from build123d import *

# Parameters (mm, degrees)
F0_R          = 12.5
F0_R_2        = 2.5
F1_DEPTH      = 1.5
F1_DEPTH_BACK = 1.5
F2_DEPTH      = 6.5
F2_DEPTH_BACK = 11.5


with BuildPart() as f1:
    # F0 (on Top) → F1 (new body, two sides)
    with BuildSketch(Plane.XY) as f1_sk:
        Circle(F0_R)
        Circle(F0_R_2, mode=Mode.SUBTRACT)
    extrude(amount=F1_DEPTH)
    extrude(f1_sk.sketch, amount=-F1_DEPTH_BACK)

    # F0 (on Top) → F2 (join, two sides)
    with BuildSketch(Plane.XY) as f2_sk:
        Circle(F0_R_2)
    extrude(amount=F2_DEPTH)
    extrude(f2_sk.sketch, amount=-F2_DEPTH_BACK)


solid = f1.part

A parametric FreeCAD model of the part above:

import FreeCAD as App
import Part
import Sketcher

V = App.Vector

doc = App.newDocument("Part")
body = doc.addObject("PartDesign::Body", "Body")

sketch1 = doc.addObject("Sketcher::SketchObject", "Sketch")
body.addObject(sketch1)
sketch1.AttachmentSupport = (doc.XY_Plane, [""])
sketch1.MapMode = "FlatFace"
sketch1.addGeometry([
    Part.Circle(V(0, 0, 0), V(0, 0, 1), 12.5),
    Part.Circle(V(0, 0, 0), V(0, 0, 1), 2.5),
], False)
sketch1.addConstraint([
    Sketcher.Constraint("Coincident", 0, 3, -1, 1),
    Sketcher.Constraint("Coincident", 1, 3, -1, 1),
    Sketcher.Constraint("Diameter", 0, 25.0),
    Sketcher.Constraint("Diameter", 1, 5.0),
])
pad1 = doc.addObject("PartDesign::Pad", "Pad")
body.addObject(pad1)
pad1.Profile = sketch1
pad1.Type = "TwoLengths"
pad1.Length = 1.5
pad1.Length2 = 1.5

sketch2 = doc.addObject("Sketcher::SketchObject", "Sketch001")
body.addObject(sketch2)
sketch2.AttachmentSupport = (doc.XY_Plane, [""])
sketch2.MapMode = "FlatFace"
sketch2.addGeometry(Part.Circle(V(0, 0, 0), V(0, 0, 1), 2.5), False)
sketch2.addConstraint([
    Sketcher.Constraint("Coincident", 0, 3, -1, 1),
    Sketcher.Constraint("Diameter", 0, 5.0),
])
pad2 = doc.addObject("PartDesign::Pad", "Pad001")
body.addObject(pad2)
pad2.Profile = sketch2
pad2.Type = "TwoLengths"
pad2.Length = 6.5
pad2.Length2 = 11.5

doc.recompute()
